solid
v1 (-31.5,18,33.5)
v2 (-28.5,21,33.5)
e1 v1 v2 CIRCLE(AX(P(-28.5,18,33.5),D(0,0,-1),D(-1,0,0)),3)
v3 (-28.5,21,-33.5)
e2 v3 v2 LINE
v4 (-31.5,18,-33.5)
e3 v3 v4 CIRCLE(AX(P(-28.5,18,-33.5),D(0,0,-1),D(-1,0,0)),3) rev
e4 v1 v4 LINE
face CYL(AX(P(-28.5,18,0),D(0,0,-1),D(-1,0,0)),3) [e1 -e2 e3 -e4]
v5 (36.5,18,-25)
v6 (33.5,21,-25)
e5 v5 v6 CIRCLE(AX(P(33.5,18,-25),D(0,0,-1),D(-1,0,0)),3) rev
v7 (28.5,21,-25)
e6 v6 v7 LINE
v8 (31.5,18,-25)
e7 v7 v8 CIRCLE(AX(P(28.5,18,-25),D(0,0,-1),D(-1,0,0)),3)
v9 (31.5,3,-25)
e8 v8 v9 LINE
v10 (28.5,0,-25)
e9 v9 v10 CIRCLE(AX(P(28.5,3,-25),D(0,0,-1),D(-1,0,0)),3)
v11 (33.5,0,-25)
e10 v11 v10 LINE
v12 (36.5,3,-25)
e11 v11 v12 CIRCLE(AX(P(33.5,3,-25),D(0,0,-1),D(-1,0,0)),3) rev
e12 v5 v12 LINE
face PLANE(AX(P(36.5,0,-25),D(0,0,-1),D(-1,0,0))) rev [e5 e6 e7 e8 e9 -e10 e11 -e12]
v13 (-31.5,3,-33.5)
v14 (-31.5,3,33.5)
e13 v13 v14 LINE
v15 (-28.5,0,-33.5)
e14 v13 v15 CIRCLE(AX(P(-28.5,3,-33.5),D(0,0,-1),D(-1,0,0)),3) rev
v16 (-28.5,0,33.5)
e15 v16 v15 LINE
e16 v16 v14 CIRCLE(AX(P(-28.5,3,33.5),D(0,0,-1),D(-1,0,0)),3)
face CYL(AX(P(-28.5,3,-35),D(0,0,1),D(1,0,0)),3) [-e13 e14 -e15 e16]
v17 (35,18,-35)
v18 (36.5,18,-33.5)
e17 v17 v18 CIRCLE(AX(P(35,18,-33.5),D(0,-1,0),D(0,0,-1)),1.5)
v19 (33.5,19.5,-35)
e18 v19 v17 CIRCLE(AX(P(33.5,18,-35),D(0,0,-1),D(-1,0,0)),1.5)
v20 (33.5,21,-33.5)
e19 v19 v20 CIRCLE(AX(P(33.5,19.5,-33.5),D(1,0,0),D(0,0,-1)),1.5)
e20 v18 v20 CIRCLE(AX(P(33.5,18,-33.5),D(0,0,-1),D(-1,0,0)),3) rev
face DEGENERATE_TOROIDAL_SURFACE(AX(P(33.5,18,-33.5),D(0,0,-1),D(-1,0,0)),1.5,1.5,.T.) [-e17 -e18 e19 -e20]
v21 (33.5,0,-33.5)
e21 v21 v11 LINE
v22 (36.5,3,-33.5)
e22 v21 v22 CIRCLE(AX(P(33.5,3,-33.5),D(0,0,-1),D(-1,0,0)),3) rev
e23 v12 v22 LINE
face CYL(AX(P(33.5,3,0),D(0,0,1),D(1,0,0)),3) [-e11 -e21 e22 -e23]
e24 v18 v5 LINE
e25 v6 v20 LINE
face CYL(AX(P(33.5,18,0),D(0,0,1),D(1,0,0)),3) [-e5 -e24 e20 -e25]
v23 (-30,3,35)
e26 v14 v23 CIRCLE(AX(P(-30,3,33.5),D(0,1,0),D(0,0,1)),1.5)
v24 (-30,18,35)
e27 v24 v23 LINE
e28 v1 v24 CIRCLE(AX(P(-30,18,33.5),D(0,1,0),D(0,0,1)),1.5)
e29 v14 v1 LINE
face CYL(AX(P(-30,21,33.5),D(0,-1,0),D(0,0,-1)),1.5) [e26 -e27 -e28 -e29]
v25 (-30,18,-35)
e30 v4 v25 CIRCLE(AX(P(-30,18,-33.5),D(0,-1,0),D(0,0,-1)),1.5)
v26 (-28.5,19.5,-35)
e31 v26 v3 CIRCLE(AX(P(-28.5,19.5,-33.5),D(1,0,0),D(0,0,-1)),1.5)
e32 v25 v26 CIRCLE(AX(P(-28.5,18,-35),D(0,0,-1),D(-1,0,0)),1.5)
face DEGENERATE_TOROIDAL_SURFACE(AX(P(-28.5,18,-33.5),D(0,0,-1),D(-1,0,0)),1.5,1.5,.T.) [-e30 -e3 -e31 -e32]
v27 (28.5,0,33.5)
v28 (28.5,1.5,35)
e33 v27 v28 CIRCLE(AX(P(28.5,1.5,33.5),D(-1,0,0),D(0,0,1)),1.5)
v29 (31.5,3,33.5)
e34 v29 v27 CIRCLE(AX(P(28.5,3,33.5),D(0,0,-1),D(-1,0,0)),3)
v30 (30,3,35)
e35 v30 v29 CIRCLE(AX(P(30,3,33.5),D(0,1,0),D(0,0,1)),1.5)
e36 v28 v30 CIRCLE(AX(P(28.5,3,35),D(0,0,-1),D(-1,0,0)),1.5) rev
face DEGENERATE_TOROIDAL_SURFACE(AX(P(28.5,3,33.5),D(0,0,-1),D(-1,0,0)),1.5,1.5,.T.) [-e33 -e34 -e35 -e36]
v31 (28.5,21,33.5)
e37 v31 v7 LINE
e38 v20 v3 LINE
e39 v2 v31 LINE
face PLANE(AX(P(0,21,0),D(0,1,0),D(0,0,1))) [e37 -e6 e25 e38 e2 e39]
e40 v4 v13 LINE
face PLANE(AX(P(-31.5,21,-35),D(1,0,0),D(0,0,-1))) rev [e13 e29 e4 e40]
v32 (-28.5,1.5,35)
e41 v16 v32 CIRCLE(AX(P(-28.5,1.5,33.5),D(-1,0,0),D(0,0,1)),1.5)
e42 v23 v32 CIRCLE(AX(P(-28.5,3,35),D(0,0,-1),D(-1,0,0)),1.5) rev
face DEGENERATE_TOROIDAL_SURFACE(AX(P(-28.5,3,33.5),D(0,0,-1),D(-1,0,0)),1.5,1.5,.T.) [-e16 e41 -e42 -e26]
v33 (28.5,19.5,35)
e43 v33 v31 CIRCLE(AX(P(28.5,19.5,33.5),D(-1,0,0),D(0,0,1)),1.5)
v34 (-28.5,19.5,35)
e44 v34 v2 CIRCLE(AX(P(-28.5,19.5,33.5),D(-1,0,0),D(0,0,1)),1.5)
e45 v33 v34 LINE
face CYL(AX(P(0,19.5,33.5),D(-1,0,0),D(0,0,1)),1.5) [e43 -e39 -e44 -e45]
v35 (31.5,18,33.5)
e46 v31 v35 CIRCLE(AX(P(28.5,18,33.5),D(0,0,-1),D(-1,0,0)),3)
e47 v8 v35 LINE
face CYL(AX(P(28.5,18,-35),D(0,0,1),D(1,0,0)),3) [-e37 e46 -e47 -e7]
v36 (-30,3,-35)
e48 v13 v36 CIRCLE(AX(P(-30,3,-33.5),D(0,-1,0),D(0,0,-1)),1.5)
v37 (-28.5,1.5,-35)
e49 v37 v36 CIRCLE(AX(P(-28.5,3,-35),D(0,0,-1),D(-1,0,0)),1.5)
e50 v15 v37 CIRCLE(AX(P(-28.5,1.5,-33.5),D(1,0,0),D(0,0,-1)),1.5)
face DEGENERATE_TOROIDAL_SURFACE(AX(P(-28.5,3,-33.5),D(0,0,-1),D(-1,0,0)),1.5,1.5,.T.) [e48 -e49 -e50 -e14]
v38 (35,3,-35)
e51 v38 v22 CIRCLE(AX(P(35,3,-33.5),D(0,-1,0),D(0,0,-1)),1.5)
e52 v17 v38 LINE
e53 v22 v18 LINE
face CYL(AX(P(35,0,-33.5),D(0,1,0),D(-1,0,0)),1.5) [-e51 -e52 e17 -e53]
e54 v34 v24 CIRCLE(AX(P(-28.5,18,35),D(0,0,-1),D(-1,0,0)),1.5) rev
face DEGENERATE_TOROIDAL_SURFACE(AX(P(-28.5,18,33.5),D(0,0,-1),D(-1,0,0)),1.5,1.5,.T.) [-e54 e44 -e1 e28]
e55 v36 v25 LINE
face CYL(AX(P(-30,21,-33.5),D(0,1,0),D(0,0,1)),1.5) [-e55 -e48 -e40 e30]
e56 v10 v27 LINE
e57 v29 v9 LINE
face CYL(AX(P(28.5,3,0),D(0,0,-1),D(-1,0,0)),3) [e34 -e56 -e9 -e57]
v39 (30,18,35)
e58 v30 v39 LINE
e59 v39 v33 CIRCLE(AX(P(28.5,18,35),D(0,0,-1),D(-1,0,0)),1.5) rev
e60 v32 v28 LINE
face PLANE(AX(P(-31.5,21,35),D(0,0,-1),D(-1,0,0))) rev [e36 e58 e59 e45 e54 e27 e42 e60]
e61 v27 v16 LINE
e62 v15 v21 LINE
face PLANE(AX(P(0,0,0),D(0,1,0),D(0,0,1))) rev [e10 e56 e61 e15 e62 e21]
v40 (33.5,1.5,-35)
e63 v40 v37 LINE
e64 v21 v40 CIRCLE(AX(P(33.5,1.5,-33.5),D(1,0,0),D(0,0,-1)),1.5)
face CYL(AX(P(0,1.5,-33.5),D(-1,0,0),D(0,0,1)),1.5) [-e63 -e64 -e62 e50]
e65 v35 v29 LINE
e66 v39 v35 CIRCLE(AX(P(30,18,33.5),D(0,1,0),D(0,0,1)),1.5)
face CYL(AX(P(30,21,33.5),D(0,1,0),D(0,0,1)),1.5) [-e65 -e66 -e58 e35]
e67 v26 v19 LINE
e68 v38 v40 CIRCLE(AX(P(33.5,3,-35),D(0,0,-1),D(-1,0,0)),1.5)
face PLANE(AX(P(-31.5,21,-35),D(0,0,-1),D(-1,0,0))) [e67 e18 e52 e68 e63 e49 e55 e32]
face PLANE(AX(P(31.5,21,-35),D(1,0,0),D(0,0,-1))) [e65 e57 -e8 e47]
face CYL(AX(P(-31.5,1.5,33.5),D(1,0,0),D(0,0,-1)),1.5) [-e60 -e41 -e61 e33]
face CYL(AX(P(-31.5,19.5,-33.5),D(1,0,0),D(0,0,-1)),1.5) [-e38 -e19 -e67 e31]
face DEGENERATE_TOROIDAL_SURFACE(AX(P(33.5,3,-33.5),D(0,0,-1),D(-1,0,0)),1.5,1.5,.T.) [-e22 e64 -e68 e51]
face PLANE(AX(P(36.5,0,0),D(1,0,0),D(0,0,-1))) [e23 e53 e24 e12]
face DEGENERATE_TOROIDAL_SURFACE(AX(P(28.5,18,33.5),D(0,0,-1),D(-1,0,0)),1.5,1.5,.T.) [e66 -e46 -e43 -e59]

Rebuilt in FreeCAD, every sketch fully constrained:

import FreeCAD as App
import Part
import Sketcher

V = App.Vector
Q = App.Units.Quantity


def edges_at(feature, points):
    """Names of the edges that pass closest to the given points."""
    edges = feature.Shape.Edges
    near = lambda p: min(range(len(edges)), key=lambda i: edges[i].distToShape(Part.Vertex(*p))[0])
    return sorted({f"Edge{near(p) + 1}" for p in points})

doc = App.newDocument("Part")
params = doc.addObject("Spreadsheet::Sheet", "Params")
for row, (alias, value) in enumerate([
    ("sketch1_width", "63 mm"),
    ("sketch1_height", "70 mm"),
    ("pad1_length", "21 mm"),
    ("sketch2_width", "21 mm"),
    ("sketch2_height", "10 mm"),
    ("pad2_length", "5 mm"),
    ("fillet_radius", "3 mm"),
    ("fillet2_radius", "1.5 mm"),
], start=1):
    params.set(f"A{row}", alias)
    params.set(f"B{row}", "=" + value)
    params.setAlias(f"B{row}", alias)

body = doc.addObject("PartDesign::Body", "Body")

# Sketch on XZ plane
sketch1 = doc.addObject("Sketcher::SketchObject", "Sketch")
body.addObject(sketch1)
sketch1.AttachmentSupport = (doc.XZ_Plane, [""])
sketch1.MapMode = "FlatFace"
sketch1.addGeometry(Part.LineSegment(V(-32, -35, 0), V(-32, 35, 0)), False)
sketch1.addGeometry(Part.LineSegment(V(-32, 35, 0), V(32, 35, 0)), False)
sketch1.addGeometry(Part.LineSegment(V(32, 35, 0), V(32, -35, 0)), False)
sketch1.addGeometry(Part.LineSegment(V(32, -35, 0), V(-32, -35, 0)), False)
sketch1.addConstraint(Sketcher.Constraint("Coincident", 0, 2, 1, 1))
sketch1.addConstraint(Sketcher.Constraint("Coincident", 1, 2, 2, 1))
sketch1.addConstraint(Sketcher.Constraint("Coincident", 2, 2, 3, 1))
sketch1.addConstraint(Sketcher.Constraint("Coincident", 3, 2, 0, 1))
sketch1.addConstraint(Sketcher.Constraint("Vertical", 0))
sketch1.addConstraint(Sketcher.Constraint("Horizontal", 1))
sketch1.addConstraint(Sketcher.Constraint("Vertical", 2))
sketch1.addConstraint(Sketcher.Constraint("Horizontal", 3))
sketch1.addConstraint(Sketcher.Constraint("Symmetric", 0, 2, 2, 2, -1, 1))
sketch1.addConstraint(Sketcher.Constraint("DistanceX", 1, 1, 1, 2, Q("63 mm")))
sketch1.addConstraint(Sketcher.Constraint("DistanceY", 0, 1, 0, 2, Q("70 mm")))
sketch1.setExpression("Constraints[9]", "Params.sketch1_width")
sketch1.setExpression("Constraints[10]", "Params.sketch1_height")
pad1 = doc.addObject("PartDesign::Pad", "Pad")
body.addObject(pad1)
pad1.Profile = sketch1
pad1.setExpression("Length", "Params.pad1_length")
pad1.Reversed = True

# Sketch on YZ plane
sketch2 = doc.addObject("Sketcher::SketchObject", "Sketch001")
body.addObject(sketch2)
sketch2.AttachmentSupport = (doc.YZ_Plane, [""])
sketch2.MapMode = "FlatFace"
sketch2.AttachmentOffset = App.Placement(V(0, 0, 31.5), App.Rotation())
sketch2.addGeometry(Part.LineSegment(V(21, -25, 0), V(0, -25, 0)), False)
sketch2.addGeometry(Part.LineSegment(V(0, -25, 0), V(0, -35, 0)), False)
sketch2.addGeometry(Part.LineSegment(V(0, -35, 0), V(21, -35, 0)), False)
sketch2.addGeometry(Part.LineSegment(V(21, -35, 0), V(21, -25, 0)), False)
sketch2.addConstraint(Sketcher.Constraint("Coincident", 0, 2, 1, 1))
sketch2.addConstraint(Sketcher.Constraint("Coincident", 1, 2, 2, 1))
sketch2.addConstraint(Sketcher.Constraint("Coincident", 2, 2, 3, 1))
sketch2.addConstraint(Sketcher.Constraint("Coincident", 3, 2, 0, 1))
sketch2.addConstraint(Sketcher.Constraint("Horizontal", 0))
sketch2.addConstraint(Sketcher.Constraint("Vertical", 1))
sketch2.addConstraint(Sketcher.Constraint("Horizontal", 2))
sketch2.addConstraint(Sketcher.Constraint("Vertical", 3))
sketch2.addConstraint(Sketcher.Constraint("PointOnObject", 0, 2, -2))
sketch2.addConstraint(Sketcher.Constraint("DistanceX", 0, 2, 0, 1, Q("21 mm")))
sketch2.addConstraint(Sketcher.Constraint("DistanceY", 1, 2, 1, 1, Q("10 mm")))
sketch2.addConstraint(Sketcher.Constraint("DistanceY", 0, 2, -1, 1, Q("25 mm")))
sketch2.setExpression("Constraints[9]", "Params.sketch2_width")
sketch2.setExpression("Constraints[10]", "Params.sketch2_height")
pad2 = doc.addObject("PartDesign::Pad", "Pad001")
body.addObject(pad2)
pad2.Profile = sketch2
pad2.setExpression("Length", "Params.pad2_length")
doc.recompute()

fillet = doc.addObject("PartDesign::Fillet", "Fillet")
body.addObject(fillet)
fillet.Base = (pad2, edges_at(pad2, [
    (31.5, 0, 5),
    (31.5, 21, 5),
    (36.5, 21, -30),
    (36.5, 0, -30),
    (-31.5, 21, 0),
    (-31.5, 0, 0),
]))
fillet.setExpression("Radius", "Params.fillet_radius")
doc.recompute()

fillet2 = doc.addObject("PartDesign::Fillet", "Fillet001")
body.addObject(fillet2)
fillet2.Base = (fillet, edges_at(fillet, [
    (-31.5, 10.5, 35),
    (-31.5, 10.5, -35),
    (0, 0, 35),
    (31.5, 10.5, 35),
    (0, 21, 35),
    (30.621, 20.121, 35),
    (30.621, 0.879, 35),
    (-30.621, 20.121, 35),
    (-30.621, 0.879, 35),
    (2.5, 0, -35),
    (2.5, 21, -35),
    (36.5, 10.5, -35),
    (35.621, 20.121, -35),
    (35.621, 0.879, -35),
    (-30.621, 20.121, -35),
    (-30.621, 0.879, -35),
]))
fillet2.setExpression("Radius", "Params.fillet2_radius")

doc.recompute()
